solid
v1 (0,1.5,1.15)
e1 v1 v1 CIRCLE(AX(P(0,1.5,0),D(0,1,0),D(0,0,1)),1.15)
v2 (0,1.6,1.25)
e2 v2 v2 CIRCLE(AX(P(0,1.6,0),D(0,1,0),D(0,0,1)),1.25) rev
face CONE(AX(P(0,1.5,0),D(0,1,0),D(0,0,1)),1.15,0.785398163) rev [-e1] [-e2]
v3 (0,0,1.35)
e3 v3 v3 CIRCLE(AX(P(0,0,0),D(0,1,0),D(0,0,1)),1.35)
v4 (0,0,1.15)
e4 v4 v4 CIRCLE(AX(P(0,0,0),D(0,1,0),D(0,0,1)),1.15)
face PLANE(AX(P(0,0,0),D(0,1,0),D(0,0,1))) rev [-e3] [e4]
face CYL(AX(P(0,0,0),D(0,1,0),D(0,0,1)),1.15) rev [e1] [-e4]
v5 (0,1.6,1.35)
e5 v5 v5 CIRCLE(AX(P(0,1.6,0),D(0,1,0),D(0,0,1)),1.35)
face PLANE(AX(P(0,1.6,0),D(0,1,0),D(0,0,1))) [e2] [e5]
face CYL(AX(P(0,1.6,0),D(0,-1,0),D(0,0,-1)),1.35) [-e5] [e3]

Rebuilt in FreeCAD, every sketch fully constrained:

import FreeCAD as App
import Part
import Sketcher

V = App.Vector
Q = App.Units.Quantity


def edges_at(feature, points):
    """Names of the edges that pass closest to the given points."""
    edges = feature.Shape.Edges
    near = lambda p: min(range(len(edges)), key=lambda i: edges[i].distToShape(Part.Vertex(*p))[0])
    return sorted({f"Edge{near(p) + 1}" for p in points})

doc = App.newDocument("Part")
body = doc.addObject("PartDesign::Body", "Body")

sketch1 = body.newObject("Sketcher::SketchObject", "Sketch")
sketch1.AttachmentSupport = (doc.getObject("XZ_Plane"), [""])
sketch1.MapMode = "FlatFace"
sketch1.addGeometry(Part.Circle(V(0, 0, 0), V(0, 0, 1), 1.35), False)
sketch1.addConstraint([
    Sketcher.Constraint("Coincident", 0, 3, -1, 1),
    Sketcher.Constraint("Diameter", 0, Q("2.7 mm")),
])
pad1 = body.newObject("PartDesign::Pad", "Pad")
pad1.Profile = sketch1
pad1.Length = 1.6
pad1.Reversed = True

sketch2 = body.newObject("Sketcher::SketchObject", "Sketch001")
sketch2.AttachmentSupport = (doc.getObject("XZ_Plane"), [""])
sketch2.MapMode = "FlatFace"
sketch2.AttachmentOffset = App.Placement(V(0, 0, -1.6), App.Rotation())
sketch2.addGeometry(Part.Circle(V(0, 0, 0), V(0, 0, 1), 1.15), False)
sketch2.addConstraint([
    Sketcher.Constraint("Coincident", 0, 3, -1, 1),
    Sketcher.Constraint("Diameter", 0, Q("2.3 mm")),
])
pocket1 = body.newObject("PartDesign::Pocket", "Pocket")
pocket1.Profile = sketch2
pocket1.Type = "ThroughAll"
pocket1.Reversed = True
doc.recompute()

chamfer = body.newObject("PartDesign::Chamfer", "Chamfer")
chamfer.Base = (pocket1, edges_at(pocket1, [(-1.15, 1.6, 0)]))
chamfer.Size = 0.1

doc.recompute()
